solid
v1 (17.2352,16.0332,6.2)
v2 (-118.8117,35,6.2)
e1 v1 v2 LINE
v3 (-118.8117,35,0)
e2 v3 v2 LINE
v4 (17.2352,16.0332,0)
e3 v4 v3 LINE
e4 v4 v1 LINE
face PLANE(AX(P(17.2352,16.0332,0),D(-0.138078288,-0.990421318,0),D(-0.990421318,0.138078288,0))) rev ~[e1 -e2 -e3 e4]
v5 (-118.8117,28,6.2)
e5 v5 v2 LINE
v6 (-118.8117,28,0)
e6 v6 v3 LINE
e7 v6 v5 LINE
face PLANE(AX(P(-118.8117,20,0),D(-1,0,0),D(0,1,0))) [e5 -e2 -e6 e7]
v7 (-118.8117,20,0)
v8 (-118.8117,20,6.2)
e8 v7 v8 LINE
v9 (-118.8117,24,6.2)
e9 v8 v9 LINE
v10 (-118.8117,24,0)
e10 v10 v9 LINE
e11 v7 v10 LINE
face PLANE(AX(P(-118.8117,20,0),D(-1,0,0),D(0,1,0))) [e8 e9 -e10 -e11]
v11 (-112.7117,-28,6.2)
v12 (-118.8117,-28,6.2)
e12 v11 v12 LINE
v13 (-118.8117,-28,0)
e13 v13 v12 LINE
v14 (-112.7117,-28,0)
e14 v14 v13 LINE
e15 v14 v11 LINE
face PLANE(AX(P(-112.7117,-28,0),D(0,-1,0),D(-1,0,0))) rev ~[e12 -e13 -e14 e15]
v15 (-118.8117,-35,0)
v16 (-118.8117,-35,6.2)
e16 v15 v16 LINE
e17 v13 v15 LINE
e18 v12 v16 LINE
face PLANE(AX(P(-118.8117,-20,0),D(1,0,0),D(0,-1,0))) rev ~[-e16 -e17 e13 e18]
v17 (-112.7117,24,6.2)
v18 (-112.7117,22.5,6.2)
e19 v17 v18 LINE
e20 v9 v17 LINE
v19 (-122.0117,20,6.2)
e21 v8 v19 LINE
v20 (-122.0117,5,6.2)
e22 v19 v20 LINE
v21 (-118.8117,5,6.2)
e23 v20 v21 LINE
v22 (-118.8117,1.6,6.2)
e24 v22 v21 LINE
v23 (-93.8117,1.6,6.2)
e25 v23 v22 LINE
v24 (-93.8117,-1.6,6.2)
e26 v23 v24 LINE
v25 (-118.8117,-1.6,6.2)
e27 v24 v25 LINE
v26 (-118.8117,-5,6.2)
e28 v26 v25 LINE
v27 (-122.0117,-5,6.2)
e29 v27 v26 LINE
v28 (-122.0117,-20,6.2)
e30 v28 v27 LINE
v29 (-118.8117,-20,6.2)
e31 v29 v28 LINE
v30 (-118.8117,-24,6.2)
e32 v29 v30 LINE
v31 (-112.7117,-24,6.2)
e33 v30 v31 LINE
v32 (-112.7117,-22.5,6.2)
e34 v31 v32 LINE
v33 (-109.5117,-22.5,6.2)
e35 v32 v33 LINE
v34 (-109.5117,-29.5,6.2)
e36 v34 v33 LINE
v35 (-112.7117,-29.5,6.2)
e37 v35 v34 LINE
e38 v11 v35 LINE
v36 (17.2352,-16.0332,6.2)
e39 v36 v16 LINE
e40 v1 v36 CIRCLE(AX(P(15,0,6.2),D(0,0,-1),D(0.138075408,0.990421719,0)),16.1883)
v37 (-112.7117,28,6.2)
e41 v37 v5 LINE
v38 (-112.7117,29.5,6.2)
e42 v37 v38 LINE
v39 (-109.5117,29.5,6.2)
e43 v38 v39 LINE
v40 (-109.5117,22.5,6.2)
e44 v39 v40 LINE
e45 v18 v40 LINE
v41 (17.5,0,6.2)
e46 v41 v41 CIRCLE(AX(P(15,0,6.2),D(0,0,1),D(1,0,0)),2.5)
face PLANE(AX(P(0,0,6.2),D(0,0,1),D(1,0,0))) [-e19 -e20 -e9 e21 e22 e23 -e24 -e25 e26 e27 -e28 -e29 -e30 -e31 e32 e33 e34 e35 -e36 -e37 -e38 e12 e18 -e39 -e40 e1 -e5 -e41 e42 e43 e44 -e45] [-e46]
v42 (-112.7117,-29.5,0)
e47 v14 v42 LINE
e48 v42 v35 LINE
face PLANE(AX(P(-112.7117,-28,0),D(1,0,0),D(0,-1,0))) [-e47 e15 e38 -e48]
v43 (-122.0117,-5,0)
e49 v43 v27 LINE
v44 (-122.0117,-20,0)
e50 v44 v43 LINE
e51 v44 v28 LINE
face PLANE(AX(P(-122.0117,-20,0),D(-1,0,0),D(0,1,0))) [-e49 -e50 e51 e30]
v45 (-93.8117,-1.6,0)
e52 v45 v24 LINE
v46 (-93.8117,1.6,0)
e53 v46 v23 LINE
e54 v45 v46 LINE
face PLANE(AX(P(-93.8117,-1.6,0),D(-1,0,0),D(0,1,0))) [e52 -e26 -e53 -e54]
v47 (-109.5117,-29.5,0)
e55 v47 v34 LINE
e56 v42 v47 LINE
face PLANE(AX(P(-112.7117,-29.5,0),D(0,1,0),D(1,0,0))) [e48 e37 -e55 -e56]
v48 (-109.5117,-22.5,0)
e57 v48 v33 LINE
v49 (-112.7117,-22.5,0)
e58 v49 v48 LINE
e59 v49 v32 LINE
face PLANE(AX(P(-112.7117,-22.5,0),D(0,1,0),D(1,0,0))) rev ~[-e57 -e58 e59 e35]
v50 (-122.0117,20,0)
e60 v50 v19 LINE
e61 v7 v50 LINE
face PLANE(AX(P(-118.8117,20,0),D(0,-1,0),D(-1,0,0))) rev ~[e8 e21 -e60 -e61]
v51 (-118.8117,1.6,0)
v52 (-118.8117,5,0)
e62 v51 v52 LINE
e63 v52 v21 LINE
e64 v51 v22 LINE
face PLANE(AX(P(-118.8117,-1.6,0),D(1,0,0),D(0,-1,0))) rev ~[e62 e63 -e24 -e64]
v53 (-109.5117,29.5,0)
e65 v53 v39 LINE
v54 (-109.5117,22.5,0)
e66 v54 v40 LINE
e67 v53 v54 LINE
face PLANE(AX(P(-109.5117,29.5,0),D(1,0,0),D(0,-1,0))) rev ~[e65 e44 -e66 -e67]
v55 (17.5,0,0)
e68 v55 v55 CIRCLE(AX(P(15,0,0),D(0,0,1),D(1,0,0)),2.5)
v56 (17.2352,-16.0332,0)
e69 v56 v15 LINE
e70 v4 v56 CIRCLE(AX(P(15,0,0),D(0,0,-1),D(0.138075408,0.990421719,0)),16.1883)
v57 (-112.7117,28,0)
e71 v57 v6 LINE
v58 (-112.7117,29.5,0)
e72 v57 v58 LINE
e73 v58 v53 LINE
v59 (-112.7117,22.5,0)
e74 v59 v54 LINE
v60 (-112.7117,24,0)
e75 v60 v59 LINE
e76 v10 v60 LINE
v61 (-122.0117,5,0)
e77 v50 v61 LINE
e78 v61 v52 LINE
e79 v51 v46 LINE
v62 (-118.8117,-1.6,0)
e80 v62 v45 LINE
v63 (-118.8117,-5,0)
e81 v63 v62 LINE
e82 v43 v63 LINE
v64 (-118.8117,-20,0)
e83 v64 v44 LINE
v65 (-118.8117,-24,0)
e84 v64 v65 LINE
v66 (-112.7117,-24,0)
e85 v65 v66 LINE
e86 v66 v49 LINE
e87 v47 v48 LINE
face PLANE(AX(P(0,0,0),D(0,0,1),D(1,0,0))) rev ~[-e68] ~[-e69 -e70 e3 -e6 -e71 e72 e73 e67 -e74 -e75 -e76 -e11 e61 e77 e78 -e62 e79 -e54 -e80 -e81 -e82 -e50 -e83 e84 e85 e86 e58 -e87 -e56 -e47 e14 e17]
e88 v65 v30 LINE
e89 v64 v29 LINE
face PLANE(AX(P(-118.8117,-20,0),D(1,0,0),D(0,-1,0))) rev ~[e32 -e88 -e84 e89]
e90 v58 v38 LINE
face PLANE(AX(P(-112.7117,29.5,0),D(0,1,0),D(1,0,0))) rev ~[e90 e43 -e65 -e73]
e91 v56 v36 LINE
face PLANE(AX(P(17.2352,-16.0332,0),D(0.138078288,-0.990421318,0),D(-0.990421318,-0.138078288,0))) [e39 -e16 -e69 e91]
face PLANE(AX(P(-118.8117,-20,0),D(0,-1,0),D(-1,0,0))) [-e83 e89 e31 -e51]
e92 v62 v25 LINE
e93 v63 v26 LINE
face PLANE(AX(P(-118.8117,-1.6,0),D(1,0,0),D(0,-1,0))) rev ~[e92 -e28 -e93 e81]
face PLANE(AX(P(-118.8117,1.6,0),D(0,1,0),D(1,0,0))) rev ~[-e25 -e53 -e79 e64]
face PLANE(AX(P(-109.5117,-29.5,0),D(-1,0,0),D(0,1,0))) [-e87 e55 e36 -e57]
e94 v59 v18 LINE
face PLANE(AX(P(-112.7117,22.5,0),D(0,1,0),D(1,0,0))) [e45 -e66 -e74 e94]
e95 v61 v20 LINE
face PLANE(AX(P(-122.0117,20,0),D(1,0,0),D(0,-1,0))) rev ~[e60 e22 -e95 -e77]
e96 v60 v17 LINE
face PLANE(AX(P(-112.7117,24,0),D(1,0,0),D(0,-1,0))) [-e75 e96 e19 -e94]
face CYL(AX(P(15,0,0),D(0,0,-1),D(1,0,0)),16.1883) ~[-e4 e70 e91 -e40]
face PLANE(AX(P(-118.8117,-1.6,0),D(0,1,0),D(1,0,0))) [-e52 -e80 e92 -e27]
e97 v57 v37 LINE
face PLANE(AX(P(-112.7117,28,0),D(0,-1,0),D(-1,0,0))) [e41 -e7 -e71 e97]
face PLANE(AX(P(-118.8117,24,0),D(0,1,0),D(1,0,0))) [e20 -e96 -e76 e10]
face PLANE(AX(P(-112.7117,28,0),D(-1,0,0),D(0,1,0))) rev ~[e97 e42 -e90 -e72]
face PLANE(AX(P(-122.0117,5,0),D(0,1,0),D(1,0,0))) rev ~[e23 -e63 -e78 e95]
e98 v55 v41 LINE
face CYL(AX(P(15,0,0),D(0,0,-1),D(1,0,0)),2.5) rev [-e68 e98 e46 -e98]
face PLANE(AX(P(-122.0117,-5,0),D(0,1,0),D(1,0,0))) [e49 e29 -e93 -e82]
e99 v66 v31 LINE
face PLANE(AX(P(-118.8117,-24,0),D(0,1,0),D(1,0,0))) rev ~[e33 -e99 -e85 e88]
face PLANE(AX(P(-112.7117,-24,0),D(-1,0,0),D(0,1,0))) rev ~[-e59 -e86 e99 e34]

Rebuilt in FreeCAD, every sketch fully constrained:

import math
import FreeCAD as App
import Part
import Sketcher
Q = App.Units.Quantity


def add_polygon(sketch, points):
    """Adds a closed chain of lines whose ends are joined by coincident constraints."""
    first, n = sketch.GeometryCount, len(points)
    for a, b in zip(points, points[1:] + points[:1]):
        sketch.addGeometry(Part.LineSegment(App.Vector(*a, 0), App.Vector(*b, 0)), False)
    for i in range(n):
        sketch.addConstraint(Sketcher.Constraint("Coincident", first + i, 2, first + (i + 1) % n, 1))

doc = App.newDocument("Part")
body = doc.addObject("PartDesign::Body", "Body")

# Sketch on XY plane
sketch1 = body.newObject("Sketcher::SketchObject", "Sketch")
sketch1.AttachmentSupport = (doc.getObject("XY_Plane"), [""])
sketch1.MapMode = "FlatFace"
sketch1.addGeometry([
    Part.LineSegment(App.Vector(17.2, 16, 0), App.Vector(-118.8, 35, 0)),  # 0
    Part.LineSegment(App.Vector(-118.8, 35, 0), App.Vector(-118.8, 20, 0)),  # 1
    Part.LineSegment(App.Vector(-118.8, 20, 0), App.Vector(-122, 20, 0)),  # 2
    Part.LineSegment(App.Vector(-122, 20, 0), App.Vector(-122, 5, 0)),  # 3
    Part.LineSegment(App.Vector(-122, 5, 0), App.Vector(-118.8, 5, 0)),  # 4
    Part.LineSegment(App.Vector(-118.8, 5, 0), App.Vector(-118.8, -5, 0)),  # 5
    Part.LineSegment(App.Vector(-118.8, -5, 0), App.Vector(-122, -5, 0)),  # 6
    Part.LineSegment(App.Vector(-122, -5, 0), App.Vector(-122, -20, 0)),  # 7
    Part.LineSegment(App.Vector(-122, -20, 0), App.Vector(-118.8, -20, 0)),  # 8
    Part.LineSegment(App.Vector(-118.8, -20, 0), App.Vector(-118.8, -35, 0)),  # 9
    Part.LineSegment(App.Vector(-118.8, -35, 0), App.Vector(17.2, -16, 0)),  # 10
    Part.ArcOfCircle(Part.Circle(App.Vector(15, 0, 0), App.Vector(0, 0, 1), 16.2), math.radians(-82), math.radians(82)),  # 11
    Part.Circle(App.Vector(15, 0, 0), App.Vector(0, 0, 1), 2.5),  # 12
], False)
sketch1.addConstraint([
    Sketcher.Constraint("Coincident", 0, 2, 1, 1),
    Sketcher.Constraint("Coincident", 1, 2, 2, 1),
    Sketcher.Constraint("Coincident", 2, 2, 3, 1),
    Sketcher.Constraint("Coincident", 3, 2, 4, 1),
    Sketcher.Constraint("Coincident", 4, 2, 5, 1),
    Sketcher.Constraint("Coincident", 5, 2, 6, 1),
    Sketcher.Constraint("Coincident", 6, 2, 7, 1),
    Sketcher.Constraint("Coincident", 7, 2, 8, 1),
    Sketcher.Constraint("Coincident", 8, 2, 9, 1),
    Sketcher.Constraint("Coincident", 9, 2, 10, 1),
    Sketcher.Constraint("Tangent", 10, 2, 11, 1),
    Sketcher.Constraint("Tangent", 11, 2, 0, 1),
    Sketcher.Constraint("Vertical", 1),
    Sketcher.Constraint("Horizontal", 2),
    Sketcher.Constraint("Vertical", 3),
    Sketcher.Constraint("Horizontal", 4),
    Sketcher.Constraint("Vertical", 5),
    Sketcher.Constraint("Horizontal", 6),
    Sketcher.Constraint("Vertical", 7),
    Sketcher.Constraint("Horizontal", 8),
    Sketcher.Constraint("Vertical", 9),
    Sketcher.Constraint("Coincident", 12, 3, 11, 3),
    Sketcher.Constraint("Symmetric", 3, 2, 6, 2, -1),
    Sketcher.Constraint("Symmetric", 1, 2, 8, 2, -1),
    Sketcher.Constraint("Symmetric", 10, 2, 11, 2, -1),
    Sketcher.Constraint("Vertical", 1, 2, 4, 2),
    Sketcher.Constraint("Equal", 1, 3),
    Sketcher.Constraint("Diameter", 12, Q("5 mm")),
    Sketcher.Constraint("DistanceY", 1, 2, 1, 1, Q("15 mm")),
    Sketcher.Constraint("DistanceY", 5, 2, 5, 1, Q("10 mm")),
    Sketcher.Constraint("DistanceX", 2, 2, 2, 1, Q("3.2 mm")),
    Sketcher.Constraint("DistanceX", -1, 1, 11, 3, Q("15 mm")),
    Sketcher.Constraint("Radius", 11, Q("16.1883 mm")),
    Sketcher.Constraint("DistanceX", 8, 2, 10, 2, Q("136.047 mm")),
])
pad1 = body.newObject("PartDesign::Pad", "Pad")
pad1.Profile = sketch1
pad1.Length = 6.2

# Sketch on XY plane
sketch2 = body.newObject("Sketcher::SketchObject", "Sketch001")
sketch2.AttachmentSupport = (doc.getObject("XY_Plane"), [""])
sketch2.MapMode = "FlatFace"
add_polygon(sketch2, [(-93.8, 1.6), (-93.8, -1.6), (-118.8, -1.6), (-118.8, 1.6)])  # lines 0-3
sketch2.addConstraint([
    Sketcher.Constraint("Vertical", 0),
    Sketcher.Constraint("Horizontal", 1),
    Sketcher.Constraint("Vertical", 2),
    Sketcher.Constraint("Horizontal", 3),
    Sketcher.Constraint("DistanceX", 1, 2, 1, 1, Q("25 mm")),
    Sketcher.Constraint("DistanceY", 0, 2, 0, 1, Q("3.2 mm")),
    Sketcher.Constraint("DistanceY", 0, 2, -1, 1, Q("1.6 mm")),
    Sketcher.Constraint("DistanceX", 0, 2, -1, 1, Q("93.8117 mm")),
])
pocket1 = body.newObject("PartDesign::Pocket", "Pocket")
pocket1.Profile = sketch2
pocket1.Length = 10
pocket1.Reversed = True

# Sketch on XY plane
sketch3 = body.newObject("Sketcher::SketchObject", "Sketch002")
sketch3.AttachmentSupport = (doc.getObject("XY_Plane"), [""])
sketch3.MapMode = "FlatFace"
add_polygon(sketch3, [(-112.7, -28), (-118.8, -28), (-118.8, -24), (-112.7, -24), (-112.7, -22.5), (-109.5, -22.5), (-109.5, -29.5), (-112.7, -29.5)])  # lines 0-7
add_polygon(sketch3, [(-112.7, 24), (-118.8, 24), (-118.8, 28), (-112.7, 28), (-112.7, 29.5), (-109.5, 29.5), (-109.5, 22.5), (-112.7, 22.5)])  # lines 8-15
sketch3.addConstraint([
    Sketcher.Constraint("Horizontal", 0),
    Sketcher.Constraint("Vertical", 1),
    Sketcher.Constraint("Horizontal", 2),
    Sketcher.Constraint("Vertical", 3),
    Sketcher.Constraint("Horizontal", 4),
    Sketcher.Constraint("Vertical", 5),
    Sketcher.Constraint("Horizontal", 6),
    Sketcher.Constraint("Vertical", 7),
    Sketcher.Constraint("Horizontal", 8),
    Sketcher.Constraint("Vertical", 9),
    Sketcher.Constraint("Horizontal", 10),
    Sketcher.Constraint("Vertical", 11),
    Sketcher.Constraint("Horizontal", 12),
    Sketcher.Constraint("Vertical", 13),
    Sketcher.Constraint("Horizontal", 14),
    Sketcher.Constraint("Vertical", 15),
    Sketcher.Constraint("Symmetric", 1, 2, 8, 2, -1),
    Sketcher.Constraint("Symmetric", 7, 2, 10, 2, -1),
    Sketcher.Constraint("Symmetric", 5, 2, 12, 2, -1),
    Sketcher.Constraint("Symmetric", 3, 2, 14, 2, -1),
    Sketcher.Constraint("Vertical", 3, 2, 6, 2),
    Sketcher.Constraint("Equal", 3, 7),
    Sketcher.Constraint("DistanceY", 1, 1, 1, 2, Q("4 mm")),
    Sketcher.Constraint("DistanceY", 5, 2, 5, 1, Q("7 mm")),
    Sketcher.Constraint("DistanceX", 0, 2, 0, 1, Q("6.1 mm")),
    Sketcher.Constraint("DistanceX", 4, 1, 4, 2, Q("3.2 mm")),
    Sketcher.Constraint("DistanceY", 0, 2, -1, 1, Q("28 mm")),
    Sketcher.Constraint("DistanceX", 0, 2, -1, 1, Q("118.8117 mm")),
])
pocket2 = body.newObject("PartDesign::Pocket", "Pocket001")
pocket2.Profile = sketch3
pocket2.Length = 6.2
pocket2.Reversed = True

doc.recompute()
